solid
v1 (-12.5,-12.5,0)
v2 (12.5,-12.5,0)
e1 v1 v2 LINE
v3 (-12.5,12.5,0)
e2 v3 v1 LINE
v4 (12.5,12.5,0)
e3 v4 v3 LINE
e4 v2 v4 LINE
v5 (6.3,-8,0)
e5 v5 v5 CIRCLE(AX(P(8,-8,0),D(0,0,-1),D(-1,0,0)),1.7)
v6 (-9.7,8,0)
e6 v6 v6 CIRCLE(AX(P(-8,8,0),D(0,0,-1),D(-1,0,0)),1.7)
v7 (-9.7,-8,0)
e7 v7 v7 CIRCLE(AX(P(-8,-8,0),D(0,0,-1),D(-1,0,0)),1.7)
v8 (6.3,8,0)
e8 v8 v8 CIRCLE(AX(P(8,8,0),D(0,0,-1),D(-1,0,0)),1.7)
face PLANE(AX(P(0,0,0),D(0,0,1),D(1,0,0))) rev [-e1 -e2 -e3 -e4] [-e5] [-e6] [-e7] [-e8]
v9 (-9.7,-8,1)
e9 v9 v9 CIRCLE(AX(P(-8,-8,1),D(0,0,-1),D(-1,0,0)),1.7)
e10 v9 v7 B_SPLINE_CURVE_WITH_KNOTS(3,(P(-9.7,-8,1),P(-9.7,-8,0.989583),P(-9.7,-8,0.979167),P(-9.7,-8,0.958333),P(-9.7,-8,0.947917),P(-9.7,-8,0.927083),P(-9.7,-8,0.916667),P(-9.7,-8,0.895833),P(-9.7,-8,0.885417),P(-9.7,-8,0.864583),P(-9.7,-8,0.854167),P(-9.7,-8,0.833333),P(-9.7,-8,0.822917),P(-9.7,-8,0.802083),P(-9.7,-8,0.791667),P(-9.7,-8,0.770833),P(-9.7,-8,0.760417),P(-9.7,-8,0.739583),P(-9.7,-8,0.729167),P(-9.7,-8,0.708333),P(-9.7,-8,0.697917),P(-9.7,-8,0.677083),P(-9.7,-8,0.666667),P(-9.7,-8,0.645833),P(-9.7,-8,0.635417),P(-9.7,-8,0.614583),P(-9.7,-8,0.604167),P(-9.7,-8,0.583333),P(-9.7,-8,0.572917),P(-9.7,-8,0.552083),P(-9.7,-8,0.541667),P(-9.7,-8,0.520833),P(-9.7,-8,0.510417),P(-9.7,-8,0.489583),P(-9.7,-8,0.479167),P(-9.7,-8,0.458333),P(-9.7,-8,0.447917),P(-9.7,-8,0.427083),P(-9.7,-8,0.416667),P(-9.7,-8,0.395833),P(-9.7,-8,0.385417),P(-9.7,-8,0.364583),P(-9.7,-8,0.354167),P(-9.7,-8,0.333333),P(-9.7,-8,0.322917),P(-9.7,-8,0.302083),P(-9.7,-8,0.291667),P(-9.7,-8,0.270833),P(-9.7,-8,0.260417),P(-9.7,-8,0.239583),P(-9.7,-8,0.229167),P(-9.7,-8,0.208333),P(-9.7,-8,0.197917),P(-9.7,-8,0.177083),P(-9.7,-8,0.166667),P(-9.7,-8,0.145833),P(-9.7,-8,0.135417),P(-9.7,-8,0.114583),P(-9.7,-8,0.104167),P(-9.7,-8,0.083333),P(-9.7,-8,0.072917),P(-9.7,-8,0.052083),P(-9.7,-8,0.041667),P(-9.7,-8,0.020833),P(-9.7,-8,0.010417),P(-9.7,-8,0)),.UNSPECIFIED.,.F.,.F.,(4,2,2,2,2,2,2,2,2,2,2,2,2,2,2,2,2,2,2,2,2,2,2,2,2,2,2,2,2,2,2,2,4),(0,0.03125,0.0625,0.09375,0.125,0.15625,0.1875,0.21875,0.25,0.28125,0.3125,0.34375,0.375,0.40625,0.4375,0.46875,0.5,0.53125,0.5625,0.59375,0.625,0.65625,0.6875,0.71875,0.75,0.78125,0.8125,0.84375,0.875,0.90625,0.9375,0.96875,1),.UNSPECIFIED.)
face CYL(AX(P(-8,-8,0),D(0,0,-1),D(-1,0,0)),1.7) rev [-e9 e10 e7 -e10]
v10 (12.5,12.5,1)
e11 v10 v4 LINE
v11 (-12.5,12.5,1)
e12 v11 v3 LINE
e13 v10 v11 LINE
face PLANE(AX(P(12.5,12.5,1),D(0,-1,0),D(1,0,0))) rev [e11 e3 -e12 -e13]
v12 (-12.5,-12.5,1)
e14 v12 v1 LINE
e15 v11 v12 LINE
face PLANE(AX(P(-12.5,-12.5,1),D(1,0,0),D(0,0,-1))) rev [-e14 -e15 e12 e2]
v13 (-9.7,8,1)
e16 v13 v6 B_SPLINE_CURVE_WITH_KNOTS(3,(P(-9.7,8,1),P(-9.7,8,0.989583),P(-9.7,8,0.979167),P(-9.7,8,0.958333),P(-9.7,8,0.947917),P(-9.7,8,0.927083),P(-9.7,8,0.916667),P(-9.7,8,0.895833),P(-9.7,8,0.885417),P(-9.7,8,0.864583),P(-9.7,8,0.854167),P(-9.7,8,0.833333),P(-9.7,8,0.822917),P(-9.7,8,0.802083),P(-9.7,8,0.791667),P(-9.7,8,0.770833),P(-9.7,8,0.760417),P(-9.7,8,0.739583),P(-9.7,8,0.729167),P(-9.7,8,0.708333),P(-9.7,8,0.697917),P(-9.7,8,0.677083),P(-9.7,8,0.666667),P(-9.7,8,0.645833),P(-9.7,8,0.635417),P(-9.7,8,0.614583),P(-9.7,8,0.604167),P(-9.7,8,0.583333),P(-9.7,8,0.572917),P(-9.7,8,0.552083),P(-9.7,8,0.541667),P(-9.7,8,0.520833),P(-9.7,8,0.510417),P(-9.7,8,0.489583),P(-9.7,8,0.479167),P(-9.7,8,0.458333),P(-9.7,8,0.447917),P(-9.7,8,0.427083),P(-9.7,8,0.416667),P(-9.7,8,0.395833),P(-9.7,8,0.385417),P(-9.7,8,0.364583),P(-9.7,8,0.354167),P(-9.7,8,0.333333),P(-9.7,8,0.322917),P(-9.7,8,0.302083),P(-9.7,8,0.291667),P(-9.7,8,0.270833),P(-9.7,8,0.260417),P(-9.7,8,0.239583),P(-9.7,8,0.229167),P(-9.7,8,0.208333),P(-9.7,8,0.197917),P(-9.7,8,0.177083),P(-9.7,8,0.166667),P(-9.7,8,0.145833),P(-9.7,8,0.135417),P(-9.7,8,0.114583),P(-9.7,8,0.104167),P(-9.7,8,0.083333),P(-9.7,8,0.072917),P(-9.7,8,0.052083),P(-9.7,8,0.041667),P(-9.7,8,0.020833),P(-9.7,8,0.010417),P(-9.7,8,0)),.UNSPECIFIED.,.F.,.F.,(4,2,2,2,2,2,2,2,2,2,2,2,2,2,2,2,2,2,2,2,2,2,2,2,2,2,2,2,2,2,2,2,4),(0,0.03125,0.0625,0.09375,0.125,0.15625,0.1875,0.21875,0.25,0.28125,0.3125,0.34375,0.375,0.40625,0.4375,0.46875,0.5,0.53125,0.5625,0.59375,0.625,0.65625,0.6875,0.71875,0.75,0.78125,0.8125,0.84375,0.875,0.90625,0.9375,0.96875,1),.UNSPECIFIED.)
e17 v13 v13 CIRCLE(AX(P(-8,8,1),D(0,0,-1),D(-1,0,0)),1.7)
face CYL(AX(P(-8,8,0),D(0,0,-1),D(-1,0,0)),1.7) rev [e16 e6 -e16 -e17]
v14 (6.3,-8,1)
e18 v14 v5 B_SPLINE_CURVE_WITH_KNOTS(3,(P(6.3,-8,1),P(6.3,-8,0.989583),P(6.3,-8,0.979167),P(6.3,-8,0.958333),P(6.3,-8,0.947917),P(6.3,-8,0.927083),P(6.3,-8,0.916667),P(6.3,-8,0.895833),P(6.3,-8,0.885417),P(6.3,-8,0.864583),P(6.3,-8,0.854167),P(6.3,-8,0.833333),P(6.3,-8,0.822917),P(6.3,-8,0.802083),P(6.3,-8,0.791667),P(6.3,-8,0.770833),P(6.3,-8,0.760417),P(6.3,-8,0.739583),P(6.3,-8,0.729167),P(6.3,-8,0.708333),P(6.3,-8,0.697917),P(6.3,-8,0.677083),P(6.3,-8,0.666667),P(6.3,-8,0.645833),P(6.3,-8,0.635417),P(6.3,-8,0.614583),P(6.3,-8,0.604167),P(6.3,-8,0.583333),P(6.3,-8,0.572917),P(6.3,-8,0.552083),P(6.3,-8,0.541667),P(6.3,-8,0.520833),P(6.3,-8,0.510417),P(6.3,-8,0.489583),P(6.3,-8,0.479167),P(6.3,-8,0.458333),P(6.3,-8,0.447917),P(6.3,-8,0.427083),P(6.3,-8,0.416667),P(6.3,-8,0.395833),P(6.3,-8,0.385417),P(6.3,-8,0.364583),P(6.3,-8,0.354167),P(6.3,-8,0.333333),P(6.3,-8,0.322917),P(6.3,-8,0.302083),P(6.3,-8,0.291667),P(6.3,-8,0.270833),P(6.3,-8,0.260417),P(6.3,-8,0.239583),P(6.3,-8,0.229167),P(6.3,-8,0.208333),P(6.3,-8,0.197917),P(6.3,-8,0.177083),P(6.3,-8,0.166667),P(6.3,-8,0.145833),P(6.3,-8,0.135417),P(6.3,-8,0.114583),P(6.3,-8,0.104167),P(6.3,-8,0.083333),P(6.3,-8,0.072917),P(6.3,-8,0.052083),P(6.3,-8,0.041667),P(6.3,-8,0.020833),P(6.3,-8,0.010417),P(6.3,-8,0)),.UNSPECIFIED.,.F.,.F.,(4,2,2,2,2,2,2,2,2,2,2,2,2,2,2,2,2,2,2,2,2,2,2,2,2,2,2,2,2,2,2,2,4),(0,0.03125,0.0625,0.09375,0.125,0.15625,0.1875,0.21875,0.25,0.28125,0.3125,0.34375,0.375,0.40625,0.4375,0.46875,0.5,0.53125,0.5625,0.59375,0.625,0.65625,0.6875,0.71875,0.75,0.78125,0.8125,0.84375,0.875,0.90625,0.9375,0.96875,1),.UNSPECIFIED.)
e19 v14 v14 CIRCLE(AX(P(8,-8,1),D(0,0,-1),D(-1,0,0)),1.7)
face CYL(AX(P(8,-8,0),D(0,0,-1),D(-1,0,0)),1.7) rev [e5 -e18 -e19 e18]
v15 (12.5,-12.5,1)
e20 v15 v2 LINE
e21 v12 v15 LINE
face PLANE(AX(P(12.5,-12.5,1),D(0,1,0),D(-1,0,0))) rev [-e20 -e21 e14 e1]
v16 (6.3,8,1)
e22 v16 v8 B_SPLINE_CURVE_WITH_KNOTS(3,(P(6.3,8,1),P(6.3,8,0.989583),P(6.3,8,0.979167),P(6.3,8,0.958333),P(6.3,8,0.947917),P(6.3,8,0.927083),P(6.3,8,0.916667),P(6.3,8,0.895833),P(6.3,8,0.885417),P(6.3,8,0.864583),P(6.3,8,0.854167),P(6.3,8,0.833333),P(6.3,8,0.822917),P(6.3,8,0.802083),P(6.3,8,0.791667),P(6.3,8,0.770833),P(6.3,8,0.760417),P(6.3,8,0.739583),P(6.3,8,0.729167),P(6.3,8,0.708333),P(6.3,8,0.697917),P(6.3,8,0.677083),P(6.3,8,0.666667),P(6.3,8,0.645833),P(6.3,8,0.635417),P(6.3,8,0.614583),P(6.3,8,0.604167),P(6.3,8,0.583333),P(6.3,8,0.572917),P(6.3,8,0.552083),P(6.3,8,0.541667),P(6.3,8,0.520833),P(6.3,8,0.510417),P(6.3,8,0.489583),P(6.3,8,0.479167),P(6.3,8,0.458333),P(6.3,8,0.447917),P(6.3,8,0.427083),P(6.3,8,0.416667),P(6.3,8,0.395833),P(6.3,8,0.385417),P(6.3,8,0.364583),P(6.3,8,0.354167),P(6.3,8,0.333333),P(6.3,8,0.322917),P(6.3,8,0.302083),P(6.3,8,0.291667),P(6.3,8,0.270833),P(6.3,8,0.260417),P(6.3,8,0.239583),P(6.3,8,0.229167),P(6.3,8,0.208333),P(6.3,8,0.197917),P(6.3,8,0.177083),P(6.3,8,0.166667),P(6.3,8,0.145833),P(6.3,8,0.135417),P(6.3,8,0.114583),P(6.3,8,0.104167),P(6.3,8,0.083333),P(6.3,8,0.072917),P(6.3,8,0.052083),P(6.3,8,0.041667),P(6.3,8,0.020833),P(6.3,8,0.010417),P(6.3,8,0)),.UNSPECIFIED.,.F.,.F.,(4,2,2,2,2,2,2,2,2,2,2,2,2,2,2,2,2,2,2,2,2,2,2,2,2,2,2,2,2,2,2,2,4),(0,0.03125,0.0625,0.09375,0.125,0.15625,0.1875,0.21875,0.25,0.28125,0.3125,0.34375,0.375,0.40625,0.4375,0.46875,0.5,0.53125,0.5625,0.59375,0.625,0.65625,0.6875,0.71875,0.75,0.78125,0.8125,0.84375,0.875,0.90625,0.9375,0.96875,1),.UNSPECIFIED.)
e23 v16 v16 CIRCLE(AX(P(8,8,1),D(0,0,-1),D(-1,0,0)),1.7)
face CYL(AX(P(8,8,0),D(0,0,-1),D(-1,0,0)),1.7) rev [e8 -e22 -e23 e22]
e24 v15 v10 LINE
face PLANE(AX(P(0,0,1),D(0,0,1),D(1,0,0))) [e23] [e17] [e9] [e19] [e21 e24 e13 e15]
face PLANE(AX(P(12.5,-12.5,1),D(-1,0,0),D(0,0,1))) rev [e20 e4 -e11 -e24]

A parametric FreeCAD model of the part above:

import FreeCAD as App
import Part
import Sketcher
Q = App.Units.Quantity


def add_polygon(sketch, points):
    """Adds a closed chain of lines whose ends are joined by coincident constraints."""
    first, n = sketch.GeometryCount, len(points)
    for a, b in zip(points, points[1:] + points[:1]):
        sketch.addGeometry(Part.LineSegment(App.Vector(*a, 0), App.Vector(*b, 0)), False)
    for i in range(n):
        sketch.addConstraint(Sketcher.Constraint("Coincident", first + i, 2, first + (i + 1) % n, 1))

doc = App.newDocument("Part")
body = doc.addObject("PartDesign::Body", "Body")

sketch1 = body.newObject("Sketcher::SketchObject", "Sketch")
sketch1.AttachmentSupport = (doc.getObject("XY_Plane"), [""])
sketch1.MapMode = "FlatFace"
add_polygon(sketch1, [(-12, 12), (-12, -12), (12, -12), (12, 12)])
sketch1.addConstraint([
    Sketcher.Constraint("Vertical", 0),
    Sketcher.Constraint("Horizontal", 1),
    Sketcher.Constraint("Vertical", 2),
    Sketcher.Constraint("Horizontal", 3),
    Sketcher.Constraint("Symmetric", 0, 2, 2, 2, -1, 1),
    Sketcher.Constraint("Equal", 3, 0),
    Sketcher.Constraint("DistanceX", 1, 1, 1, 2, Q("25 mm")),
])
pad1 = body.newObject("PartDesign::Pad", "Pad")
pad1.Profile = sketch1
pad1.Length = 1

sketch2 = body.newObject("Sketcher::SketchObject", "Sketch001")
sketch2.AttachmentSupport = (doc.getObject("XY_Plane"), [""])
sketch2.MapMode = "FlatFace"
sketch2.addGeometry([
    Part.Circle(App.Vector(-8, -8, 0), App.Vector(0, 0, 1), 1.7),
    Part.Circle(App.Vector(-8, 8, 0), App.Vector(0, 0, 1), 1.7),
    Part.Circle(App.Vector(8, 8, 0), App.Vector(0, 0, 1), 1.7),
    Part.Circle(App.Vector(8, -8, 0), App.Vector(0, 0, 1), 1.7),
], False)
sketch2.addConstraint([
    Sketcher.Constraint("Equal", 0, 1),
    Sketcher.Constraint("Equal", 1, 2),
    Sketcher.Constraint("Equal", 2, 3),
    Sketcher.Constraint("Symmetric", 0, 3, 2, 3, -1, 1),
    Sketcher.Constraint("Symmetric", 1, 3, 3, 3, -1, 1),
    Sketcher.Constraint("Symmetric", 1, 3, 2, 3, -2),
    Sketcher.Constraint("Diameter", 0, Q("3.4 mm")),
    Sketcher.Constraint("DistanceX", 0, 3, -1, 1, Q("8 mm")),
    Sketcher.Constraint("DistanceY", 0, 3, -1, 1, Q("8 mm")),
])
doc.recompute()
hole = body.newObject("PartDesign::Hole", "Hole")
hole.Profile = sketch2
hole.ThreadType = "None"
hole.Diameter = 3.4
hole.DepthType = "ThroughAll"
hole.Reversed = True

doc.recompute()
